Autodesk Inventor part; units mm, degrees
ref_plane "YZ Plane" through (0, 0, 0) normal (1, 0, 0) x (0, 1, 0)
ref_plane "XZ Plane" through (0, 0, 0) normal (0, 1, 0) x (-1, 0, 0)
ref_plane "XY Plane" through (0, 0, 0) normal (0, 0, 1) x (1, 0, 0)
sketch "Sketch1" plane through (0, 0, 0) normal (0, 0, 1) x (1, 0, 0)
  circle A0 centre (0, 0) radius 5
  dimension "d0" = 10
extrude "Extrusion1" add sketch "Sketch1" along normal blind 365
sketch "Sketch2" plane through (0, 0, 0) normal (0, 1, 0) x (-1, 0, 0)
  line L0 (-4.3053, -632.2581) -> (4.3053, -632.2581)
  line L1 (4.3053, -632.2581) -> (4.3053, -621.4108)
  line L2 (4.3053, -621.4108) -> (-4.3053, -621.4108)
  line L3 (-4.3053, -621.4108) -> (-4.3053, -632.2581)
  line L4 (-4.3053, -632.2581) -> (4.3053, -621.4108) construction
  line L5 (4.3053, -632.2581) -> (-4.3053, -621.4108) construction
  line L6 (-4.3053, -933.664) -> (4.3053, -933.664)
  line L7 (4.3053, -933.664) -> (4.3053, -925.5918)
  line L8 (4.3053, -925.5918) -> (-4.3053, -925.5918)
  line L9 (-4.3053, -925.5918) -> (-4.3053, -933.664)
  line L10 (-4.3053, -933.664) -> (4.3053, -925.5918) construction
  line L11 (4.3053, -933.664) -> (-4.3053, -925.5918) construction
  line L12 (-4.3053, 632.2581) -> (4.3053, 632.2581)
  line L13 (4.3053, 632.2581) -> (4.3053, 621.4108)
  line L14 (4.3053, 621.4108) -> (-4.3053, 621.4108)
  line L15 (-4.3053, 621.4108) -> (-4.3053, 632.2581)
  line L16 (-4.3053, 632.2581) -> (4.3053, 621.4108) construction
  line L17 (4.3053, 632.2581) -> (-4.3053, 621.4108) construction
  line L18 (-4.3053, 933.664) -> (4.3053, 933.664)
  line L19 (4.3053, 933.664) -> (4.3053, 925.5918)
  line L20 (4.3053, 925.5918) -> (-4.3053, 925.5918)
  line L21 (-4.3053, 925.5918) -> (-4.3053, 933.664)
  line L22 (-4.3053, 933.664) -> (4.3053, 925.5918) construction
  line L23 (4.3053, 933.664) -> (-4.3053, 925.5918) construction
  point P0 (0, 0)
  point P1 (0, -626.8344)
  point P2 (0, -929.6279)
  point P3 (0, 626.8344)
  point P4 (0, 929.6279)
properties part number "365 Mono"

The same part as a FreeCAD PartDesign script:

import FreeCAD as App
import Part
import Sketcher
Q = App.Units.Quantity

doc = App.newDocument("Part")
params = doc.addObject("Spreadsheet::Sheet", "Params")
for row, (alias, value) in enumerate([
    ("sketch1_diameter", "10 mm"),
    ("pad1_length", "365 mm"),
], start=1):
    params.set(f"A{row}", alias)
    params.set(f"B{row}", "=" + value)
    params.setAlias(f"B{row}", alias)

body = doc.addObject("PartDesign::Body", "Body")

# Sketch on XY plane
sketch1 = body.newObject("Sketcher::SketchObject", "Sketch")
sketch1.AttachmentSupport = (doc.getObject("XY_Plane"), [""])
sketch1.MapMode = "FlatFace"
sketch1.addGeometry(Part.Circle(App.Vector(0, 0, 0), App.Vector(0, 0, 1), 5), False)
sketch1.addConstraint([
    Sketcher.Constraint("Coincident", 0, 3, -1, 1),
    Sketcher.Constraint("Diameter", 0, Q("10 mm")),
])
sketch1.setExpression("Constraints[1]", "Params.sketch1_diameter")
pad1 = body.newObject("PartDesign::Pad", "Pad")
pad1.Profile = sketch1
pad1.setExpression("Length", "Params.pad1_length")

doc.recompute()
